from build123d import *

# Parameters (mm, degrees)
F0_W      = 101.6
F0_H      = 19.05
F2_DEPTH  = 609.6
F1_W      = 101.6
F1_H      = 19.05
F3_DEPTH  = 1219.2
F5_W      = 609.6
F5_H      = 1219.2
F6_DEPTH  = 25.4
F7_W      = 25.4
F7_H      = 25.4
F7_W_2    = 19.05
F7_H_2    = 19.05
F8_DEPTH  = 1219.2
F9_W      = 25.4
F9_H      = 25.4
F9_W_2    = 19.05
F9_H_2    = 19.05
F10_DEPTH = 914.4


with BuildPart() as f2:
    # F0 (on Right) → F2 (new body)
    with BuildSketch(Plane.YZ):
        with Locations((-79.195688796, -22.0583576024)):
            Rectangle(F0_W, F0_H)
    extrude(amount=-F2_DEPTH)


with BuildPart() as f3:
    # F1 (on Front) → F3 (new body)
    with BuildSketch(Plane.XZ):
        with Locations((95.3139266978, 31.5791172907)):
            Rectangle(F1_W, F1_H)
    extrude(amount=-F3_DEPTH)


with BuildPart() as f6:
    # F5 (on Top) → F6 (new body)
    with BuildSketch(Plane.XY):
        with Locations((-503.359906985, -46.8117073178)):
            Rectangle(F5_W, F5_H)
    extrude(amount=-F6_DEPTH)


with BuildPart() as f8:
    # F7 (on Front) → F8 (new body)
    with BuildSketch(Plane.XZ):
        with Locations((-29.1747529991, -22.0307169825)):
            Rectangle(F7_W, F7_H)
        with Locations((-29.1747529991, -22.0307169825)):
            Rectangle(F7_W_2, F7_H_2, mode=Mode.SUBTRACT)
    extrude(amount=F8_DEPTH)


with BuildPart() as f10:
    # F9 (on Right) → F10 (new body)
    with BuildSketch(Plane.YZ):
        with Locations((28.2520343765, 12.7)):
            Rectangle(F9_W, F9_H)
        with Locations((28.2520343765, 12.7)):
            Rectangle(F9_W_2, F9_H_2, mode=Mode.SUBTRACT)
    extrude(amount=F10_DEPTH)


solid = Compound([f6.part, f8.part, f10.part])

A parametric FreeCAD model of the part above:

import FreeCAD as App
import Part
import Sketcher
Q = App.Units.Quantity


def add_polygon(sketch, points):
    """Adds a closed chain of lines whose ends are joined by coincident constraints."""
    first, n = sketch.GeometryCount, len(points)
    for a, b in zip(points, points[1:] + points[:1]):
        sketch.addGeometry(Part.LineSegment(App.Vector(*a, 0), App.Vector(*b, 0)), False)
    for i in range(n):
        sketch.addConstraint(Sketcher.Constraint("Coincident", first + i, 2, first + (i + 1) % n, 1))

doc = App.newDocument("Part")
body = doc.addObject("PartDesign::Body", "Body")

# Sketch on YZ plane
sketch1 = doc.addObject("Sketcher::SketchObject", "Sketch")
body.addObject(sketch1)
sketch1.AttachmentSupport = (doc.YZ_Plane, [""])
sketch1.MapMode = "FlatFace"
add_polygon(sketch1, [(-129.995689, -12.533358), (-129.995689, -31.583358), (-28.395689, -31.583358), (-28.395689, -12.533358)])  # lines 0-3
sketch1.addConstraint([
    Sketcher.Constraint("Vertical", 0),
    Sketcher.Constraint("Horizontal", 1),
    Sketcher.Constraint("Vertical", 2),
    Sketcher.Constraint("Horizontal", 3),
    Sketcher.Constraint("DistanceX", 1, 1, 1, 2, Q("4 in")),
    Sketcher.Constraint("DistanceY", 0, 2, 0, 1, Q("0.75 in")),
    Sketcher.Constraint("DistanceX", 0, 2, -1, 1, Q("129.995689 mm")),
    Sketcher.Constraint("DistanceY", 0, 2, -1, 1, Q("31.583358 mm")),
])
pad1 = doc.addObject("PartDesign::Pad", "Pad")
body.addObject(pad1)
pad1.Profile = sketch1
pad1.Length = Q("24 in")
pad1.Reversed = True
body2 = doc.addObject("PartDesign::Body", "Body001")

# Sketch on XZ plane
sketch2 = doc.addObject("Sketcher::SketchObject", "Sketch001")
body2.addObject(sketch2)
sketch2.AttachmentSupport = (doc.getObject("XZ_Plane001"), [""])
sketch2.MapMode = "FlatFace"
add_polygon(sketch2, [(44.513927, 41.104117), (44.513927, 22.054117), (146.113927, 22.054117), (146.113927, 41.104117)])  # lines 0-3
sketch2.addConstraint([
    Sketcher.Constraint("Vertical", 0),
    Sketcher.Constraint("Horizontal", 1),
    Sketcher.Constraint("Vertical", 2),
    Sketcher.Constraint("Horizontal", 3),
    Sketcher.Constraint("DistanceX", 1, 1, 1, 2, Q("4 in")),
    Sketcher.Constraint("DistanceY", 0, 2, 0, 1, Q("0.75 in")),
    Sketcher.Constraint("DistanceX", -1, 1, 0, 2, Q("44.513927 mm")),
    Sketcher.Constraint("DistanceY", -1, 1, 0, 2, Q("22.054117 mm")),
])
pad2 = doc.addObject("PartDesign::Pad", "Pad001")
body2.addObject(pad2)
pad2.Profile = sketch2
pad2.Length = Q("48 in")
pad2.Reversed = True
body3 = doc.addObject("PartDesign::Body", "Body002")

# Sketch on XY plane
sketch3 = doc.addObject("Sketcher::SketchObject", "Sketch002")
body3.addObject(sketch3)
sketch3.AttachmentSupport = (doc.getObject("XY_Plane002"), [""])
sketch3.MapMode = "FlatFace"
add_polygon(sketch3, [(-808.159907, 562.788293), (-808.159907, -656.411707), (-198.559907, -656.411707), (-198.559907, 562.788293)])  # lines 0-3
sketch3.addConstraint([
    Sketcher.Constraint("Vertical", 0),
    Sketcher.Constraint("Horizontal", 1),
    Sketcher.Constraint("Vertical", 2),
    Sketcher.Constraint("Horizontal", 3),
    Sketcher.Constraint("DistanceX", 1, 1, 1, 2, Q("24 in")),
    Sketcher.Constraint("DistanceY", 0, 2, 0, 1, Q("48 in")),
    Sketcher.Constraint("DistanceX", 0, 2, -1, 1, Q("808.159907 mm")),
    Sketcher.Constraint("DistanceY", 0, 2, -1, 1, Q("656.411707 mm")),
])
pad3 = doc.addObject("PartDesign::Pad", "Pad002")
body3.addObject(pad3)
pad3.Profile = sketch3
pad3.Length = Q("1 in")
pad3.Reversed = True
body4 = doc.addObject("PartDesign::Body", "Body003")

# Sketch on XZ plane
sketch4 = doc.addObject("Sketcher::SketchObject", "Sketch003")
body4.addObject(sketch4)
sketch4.AttachmentSupport = (doc.getObject("XZ_Plane003"), [""])
sketch4.MapMode = "FlatFace"
add_polygon(sketch4, [(-41.874753, -9.330717), (-41.874753, -34.730717), (-16.474753, -34.730717), (-16.474753, -9.330717)])  # lines 0-3
add_polygon(sketch4, [(-19.649753, -31.555717), (-38.699753, -31.555717), (-38.699753, -12.505717), (-19.649753, -12.505717)])  # lines 4-7
sketch4.addConstraint([
    Sketcher.Constraint("Vertical", 0),
    Sketcher.Constraint("Horizontal", 1),
    Sketcher.Constraint("Vertical", 2),
    Sketcher.Constraint("Horizontal", 3),
    Sketcher.Constraint("Horizontal", 4),
    Sketcher.Constraint("Vertical", 5),
    Sketcher.Constraint("Horizontal", 6),
    Sketcher.Constraint("Vertical", 7),
    Sketcher.Constraint("Equal", 3, 0),
    Sketcher.Constraint("Equal", 6, 5),
    Sketcher.Constraint("DistanceX", 1, 1, 1, 2, Q("1 in")),
    Sketcher.Constraint("DistanceX", 4, 2, 4, 1, Q("0.75 in")),
    Sketcher.Constraint("DistanceX", 0, 2, 4, 2, Q("0.125 in")),
    Sketcher.Constraint("DistanceY", 0, 2, 4, 2, Q("0.125 in")),
    Sketcher.Constraint("DistanceX", 0, 2, -1, 1, Q("41.874753 mm")),
    Sketcher.Constraint("DistanceY", 0, 2, -1, 1, Q("34.730717 mm")),
])
pad4 = doc.addObject("PartDesign::Pad", "Pad003")
body4.addObject(pad4)
pad4.Profile = sketch4
pad4.Length = Q("48 in")
body5 = doc.addObject("PartDesign::Body", "Body004")

# Sketch on YZ plane
sketch5 = doc.addObject("Sketcher::SketchObject", "Sketch004")
body5.addObject(sketch5)
sketch5.AttachmentSupport = (doc.getObject("YZ_Plane004"), [""])
sketch5.MapMode = "FlatFace"
add_polygon(sketch5, [(15.552034, 25.4), (15.552034, 0), (40.952034, 0), (40.952034, 25.4)])  # lines 0-3
add_polygon(sketch5, [(37.777034, 3.175), (18.727034, 3.175), (18.727034, 22.225), (37.777034, 22.225)])  # lines 4-7
sketch5.addConstraint([
    Sketcher.Constraint("Vertical", 0),
    Sketcher.Constraint("Horizontal", 1),
    Sketcher.Constraint("Vertical", 2),
    Sketcher.Constraint("Horizontal", 3),
    Sketcher.Constraint("Horizontal", 4),
    Sketcher.Constraint("Vertical", 5),
    Sketcher.Constraint("Horizontal", 6),
    Sketcher.Constraint("Vertical", 7),
    Sketcher.Constraint("PointOnObject", 0, 2, -1),
    Sketcher.Constraint("Equal", 3, 0),
    Sketcher.Constraint("Equal", 6, 5),
    Sketcher.Constraint("DistanceX", 1, 1, 1, 2, Q("1 in")),
    Sketcher.Constraint("DistanceX", 4, 2, 4, 1, Q("0.75 in")),
    Sketcher.Constraint("DistanceY", -1, 1, 4, 2, Q("0.125 in")),
    Sketcher.Constraint("DistanceX", 0, 2, 4, 2, Q("0.125 in")),
    Sketcher.Constraint("DistanceX", -1, 1, 0, 2, Q("15.552034 mm")),
])
pad5 = doc.addObject("PartDesign::Pad", "Pad004")
body5.addObject(pad5)
pad5.Profile = sketch5
pad5.Length = Q("36 in")
body.Visibility = False
body2.Visibility = False

doc.recompute()
